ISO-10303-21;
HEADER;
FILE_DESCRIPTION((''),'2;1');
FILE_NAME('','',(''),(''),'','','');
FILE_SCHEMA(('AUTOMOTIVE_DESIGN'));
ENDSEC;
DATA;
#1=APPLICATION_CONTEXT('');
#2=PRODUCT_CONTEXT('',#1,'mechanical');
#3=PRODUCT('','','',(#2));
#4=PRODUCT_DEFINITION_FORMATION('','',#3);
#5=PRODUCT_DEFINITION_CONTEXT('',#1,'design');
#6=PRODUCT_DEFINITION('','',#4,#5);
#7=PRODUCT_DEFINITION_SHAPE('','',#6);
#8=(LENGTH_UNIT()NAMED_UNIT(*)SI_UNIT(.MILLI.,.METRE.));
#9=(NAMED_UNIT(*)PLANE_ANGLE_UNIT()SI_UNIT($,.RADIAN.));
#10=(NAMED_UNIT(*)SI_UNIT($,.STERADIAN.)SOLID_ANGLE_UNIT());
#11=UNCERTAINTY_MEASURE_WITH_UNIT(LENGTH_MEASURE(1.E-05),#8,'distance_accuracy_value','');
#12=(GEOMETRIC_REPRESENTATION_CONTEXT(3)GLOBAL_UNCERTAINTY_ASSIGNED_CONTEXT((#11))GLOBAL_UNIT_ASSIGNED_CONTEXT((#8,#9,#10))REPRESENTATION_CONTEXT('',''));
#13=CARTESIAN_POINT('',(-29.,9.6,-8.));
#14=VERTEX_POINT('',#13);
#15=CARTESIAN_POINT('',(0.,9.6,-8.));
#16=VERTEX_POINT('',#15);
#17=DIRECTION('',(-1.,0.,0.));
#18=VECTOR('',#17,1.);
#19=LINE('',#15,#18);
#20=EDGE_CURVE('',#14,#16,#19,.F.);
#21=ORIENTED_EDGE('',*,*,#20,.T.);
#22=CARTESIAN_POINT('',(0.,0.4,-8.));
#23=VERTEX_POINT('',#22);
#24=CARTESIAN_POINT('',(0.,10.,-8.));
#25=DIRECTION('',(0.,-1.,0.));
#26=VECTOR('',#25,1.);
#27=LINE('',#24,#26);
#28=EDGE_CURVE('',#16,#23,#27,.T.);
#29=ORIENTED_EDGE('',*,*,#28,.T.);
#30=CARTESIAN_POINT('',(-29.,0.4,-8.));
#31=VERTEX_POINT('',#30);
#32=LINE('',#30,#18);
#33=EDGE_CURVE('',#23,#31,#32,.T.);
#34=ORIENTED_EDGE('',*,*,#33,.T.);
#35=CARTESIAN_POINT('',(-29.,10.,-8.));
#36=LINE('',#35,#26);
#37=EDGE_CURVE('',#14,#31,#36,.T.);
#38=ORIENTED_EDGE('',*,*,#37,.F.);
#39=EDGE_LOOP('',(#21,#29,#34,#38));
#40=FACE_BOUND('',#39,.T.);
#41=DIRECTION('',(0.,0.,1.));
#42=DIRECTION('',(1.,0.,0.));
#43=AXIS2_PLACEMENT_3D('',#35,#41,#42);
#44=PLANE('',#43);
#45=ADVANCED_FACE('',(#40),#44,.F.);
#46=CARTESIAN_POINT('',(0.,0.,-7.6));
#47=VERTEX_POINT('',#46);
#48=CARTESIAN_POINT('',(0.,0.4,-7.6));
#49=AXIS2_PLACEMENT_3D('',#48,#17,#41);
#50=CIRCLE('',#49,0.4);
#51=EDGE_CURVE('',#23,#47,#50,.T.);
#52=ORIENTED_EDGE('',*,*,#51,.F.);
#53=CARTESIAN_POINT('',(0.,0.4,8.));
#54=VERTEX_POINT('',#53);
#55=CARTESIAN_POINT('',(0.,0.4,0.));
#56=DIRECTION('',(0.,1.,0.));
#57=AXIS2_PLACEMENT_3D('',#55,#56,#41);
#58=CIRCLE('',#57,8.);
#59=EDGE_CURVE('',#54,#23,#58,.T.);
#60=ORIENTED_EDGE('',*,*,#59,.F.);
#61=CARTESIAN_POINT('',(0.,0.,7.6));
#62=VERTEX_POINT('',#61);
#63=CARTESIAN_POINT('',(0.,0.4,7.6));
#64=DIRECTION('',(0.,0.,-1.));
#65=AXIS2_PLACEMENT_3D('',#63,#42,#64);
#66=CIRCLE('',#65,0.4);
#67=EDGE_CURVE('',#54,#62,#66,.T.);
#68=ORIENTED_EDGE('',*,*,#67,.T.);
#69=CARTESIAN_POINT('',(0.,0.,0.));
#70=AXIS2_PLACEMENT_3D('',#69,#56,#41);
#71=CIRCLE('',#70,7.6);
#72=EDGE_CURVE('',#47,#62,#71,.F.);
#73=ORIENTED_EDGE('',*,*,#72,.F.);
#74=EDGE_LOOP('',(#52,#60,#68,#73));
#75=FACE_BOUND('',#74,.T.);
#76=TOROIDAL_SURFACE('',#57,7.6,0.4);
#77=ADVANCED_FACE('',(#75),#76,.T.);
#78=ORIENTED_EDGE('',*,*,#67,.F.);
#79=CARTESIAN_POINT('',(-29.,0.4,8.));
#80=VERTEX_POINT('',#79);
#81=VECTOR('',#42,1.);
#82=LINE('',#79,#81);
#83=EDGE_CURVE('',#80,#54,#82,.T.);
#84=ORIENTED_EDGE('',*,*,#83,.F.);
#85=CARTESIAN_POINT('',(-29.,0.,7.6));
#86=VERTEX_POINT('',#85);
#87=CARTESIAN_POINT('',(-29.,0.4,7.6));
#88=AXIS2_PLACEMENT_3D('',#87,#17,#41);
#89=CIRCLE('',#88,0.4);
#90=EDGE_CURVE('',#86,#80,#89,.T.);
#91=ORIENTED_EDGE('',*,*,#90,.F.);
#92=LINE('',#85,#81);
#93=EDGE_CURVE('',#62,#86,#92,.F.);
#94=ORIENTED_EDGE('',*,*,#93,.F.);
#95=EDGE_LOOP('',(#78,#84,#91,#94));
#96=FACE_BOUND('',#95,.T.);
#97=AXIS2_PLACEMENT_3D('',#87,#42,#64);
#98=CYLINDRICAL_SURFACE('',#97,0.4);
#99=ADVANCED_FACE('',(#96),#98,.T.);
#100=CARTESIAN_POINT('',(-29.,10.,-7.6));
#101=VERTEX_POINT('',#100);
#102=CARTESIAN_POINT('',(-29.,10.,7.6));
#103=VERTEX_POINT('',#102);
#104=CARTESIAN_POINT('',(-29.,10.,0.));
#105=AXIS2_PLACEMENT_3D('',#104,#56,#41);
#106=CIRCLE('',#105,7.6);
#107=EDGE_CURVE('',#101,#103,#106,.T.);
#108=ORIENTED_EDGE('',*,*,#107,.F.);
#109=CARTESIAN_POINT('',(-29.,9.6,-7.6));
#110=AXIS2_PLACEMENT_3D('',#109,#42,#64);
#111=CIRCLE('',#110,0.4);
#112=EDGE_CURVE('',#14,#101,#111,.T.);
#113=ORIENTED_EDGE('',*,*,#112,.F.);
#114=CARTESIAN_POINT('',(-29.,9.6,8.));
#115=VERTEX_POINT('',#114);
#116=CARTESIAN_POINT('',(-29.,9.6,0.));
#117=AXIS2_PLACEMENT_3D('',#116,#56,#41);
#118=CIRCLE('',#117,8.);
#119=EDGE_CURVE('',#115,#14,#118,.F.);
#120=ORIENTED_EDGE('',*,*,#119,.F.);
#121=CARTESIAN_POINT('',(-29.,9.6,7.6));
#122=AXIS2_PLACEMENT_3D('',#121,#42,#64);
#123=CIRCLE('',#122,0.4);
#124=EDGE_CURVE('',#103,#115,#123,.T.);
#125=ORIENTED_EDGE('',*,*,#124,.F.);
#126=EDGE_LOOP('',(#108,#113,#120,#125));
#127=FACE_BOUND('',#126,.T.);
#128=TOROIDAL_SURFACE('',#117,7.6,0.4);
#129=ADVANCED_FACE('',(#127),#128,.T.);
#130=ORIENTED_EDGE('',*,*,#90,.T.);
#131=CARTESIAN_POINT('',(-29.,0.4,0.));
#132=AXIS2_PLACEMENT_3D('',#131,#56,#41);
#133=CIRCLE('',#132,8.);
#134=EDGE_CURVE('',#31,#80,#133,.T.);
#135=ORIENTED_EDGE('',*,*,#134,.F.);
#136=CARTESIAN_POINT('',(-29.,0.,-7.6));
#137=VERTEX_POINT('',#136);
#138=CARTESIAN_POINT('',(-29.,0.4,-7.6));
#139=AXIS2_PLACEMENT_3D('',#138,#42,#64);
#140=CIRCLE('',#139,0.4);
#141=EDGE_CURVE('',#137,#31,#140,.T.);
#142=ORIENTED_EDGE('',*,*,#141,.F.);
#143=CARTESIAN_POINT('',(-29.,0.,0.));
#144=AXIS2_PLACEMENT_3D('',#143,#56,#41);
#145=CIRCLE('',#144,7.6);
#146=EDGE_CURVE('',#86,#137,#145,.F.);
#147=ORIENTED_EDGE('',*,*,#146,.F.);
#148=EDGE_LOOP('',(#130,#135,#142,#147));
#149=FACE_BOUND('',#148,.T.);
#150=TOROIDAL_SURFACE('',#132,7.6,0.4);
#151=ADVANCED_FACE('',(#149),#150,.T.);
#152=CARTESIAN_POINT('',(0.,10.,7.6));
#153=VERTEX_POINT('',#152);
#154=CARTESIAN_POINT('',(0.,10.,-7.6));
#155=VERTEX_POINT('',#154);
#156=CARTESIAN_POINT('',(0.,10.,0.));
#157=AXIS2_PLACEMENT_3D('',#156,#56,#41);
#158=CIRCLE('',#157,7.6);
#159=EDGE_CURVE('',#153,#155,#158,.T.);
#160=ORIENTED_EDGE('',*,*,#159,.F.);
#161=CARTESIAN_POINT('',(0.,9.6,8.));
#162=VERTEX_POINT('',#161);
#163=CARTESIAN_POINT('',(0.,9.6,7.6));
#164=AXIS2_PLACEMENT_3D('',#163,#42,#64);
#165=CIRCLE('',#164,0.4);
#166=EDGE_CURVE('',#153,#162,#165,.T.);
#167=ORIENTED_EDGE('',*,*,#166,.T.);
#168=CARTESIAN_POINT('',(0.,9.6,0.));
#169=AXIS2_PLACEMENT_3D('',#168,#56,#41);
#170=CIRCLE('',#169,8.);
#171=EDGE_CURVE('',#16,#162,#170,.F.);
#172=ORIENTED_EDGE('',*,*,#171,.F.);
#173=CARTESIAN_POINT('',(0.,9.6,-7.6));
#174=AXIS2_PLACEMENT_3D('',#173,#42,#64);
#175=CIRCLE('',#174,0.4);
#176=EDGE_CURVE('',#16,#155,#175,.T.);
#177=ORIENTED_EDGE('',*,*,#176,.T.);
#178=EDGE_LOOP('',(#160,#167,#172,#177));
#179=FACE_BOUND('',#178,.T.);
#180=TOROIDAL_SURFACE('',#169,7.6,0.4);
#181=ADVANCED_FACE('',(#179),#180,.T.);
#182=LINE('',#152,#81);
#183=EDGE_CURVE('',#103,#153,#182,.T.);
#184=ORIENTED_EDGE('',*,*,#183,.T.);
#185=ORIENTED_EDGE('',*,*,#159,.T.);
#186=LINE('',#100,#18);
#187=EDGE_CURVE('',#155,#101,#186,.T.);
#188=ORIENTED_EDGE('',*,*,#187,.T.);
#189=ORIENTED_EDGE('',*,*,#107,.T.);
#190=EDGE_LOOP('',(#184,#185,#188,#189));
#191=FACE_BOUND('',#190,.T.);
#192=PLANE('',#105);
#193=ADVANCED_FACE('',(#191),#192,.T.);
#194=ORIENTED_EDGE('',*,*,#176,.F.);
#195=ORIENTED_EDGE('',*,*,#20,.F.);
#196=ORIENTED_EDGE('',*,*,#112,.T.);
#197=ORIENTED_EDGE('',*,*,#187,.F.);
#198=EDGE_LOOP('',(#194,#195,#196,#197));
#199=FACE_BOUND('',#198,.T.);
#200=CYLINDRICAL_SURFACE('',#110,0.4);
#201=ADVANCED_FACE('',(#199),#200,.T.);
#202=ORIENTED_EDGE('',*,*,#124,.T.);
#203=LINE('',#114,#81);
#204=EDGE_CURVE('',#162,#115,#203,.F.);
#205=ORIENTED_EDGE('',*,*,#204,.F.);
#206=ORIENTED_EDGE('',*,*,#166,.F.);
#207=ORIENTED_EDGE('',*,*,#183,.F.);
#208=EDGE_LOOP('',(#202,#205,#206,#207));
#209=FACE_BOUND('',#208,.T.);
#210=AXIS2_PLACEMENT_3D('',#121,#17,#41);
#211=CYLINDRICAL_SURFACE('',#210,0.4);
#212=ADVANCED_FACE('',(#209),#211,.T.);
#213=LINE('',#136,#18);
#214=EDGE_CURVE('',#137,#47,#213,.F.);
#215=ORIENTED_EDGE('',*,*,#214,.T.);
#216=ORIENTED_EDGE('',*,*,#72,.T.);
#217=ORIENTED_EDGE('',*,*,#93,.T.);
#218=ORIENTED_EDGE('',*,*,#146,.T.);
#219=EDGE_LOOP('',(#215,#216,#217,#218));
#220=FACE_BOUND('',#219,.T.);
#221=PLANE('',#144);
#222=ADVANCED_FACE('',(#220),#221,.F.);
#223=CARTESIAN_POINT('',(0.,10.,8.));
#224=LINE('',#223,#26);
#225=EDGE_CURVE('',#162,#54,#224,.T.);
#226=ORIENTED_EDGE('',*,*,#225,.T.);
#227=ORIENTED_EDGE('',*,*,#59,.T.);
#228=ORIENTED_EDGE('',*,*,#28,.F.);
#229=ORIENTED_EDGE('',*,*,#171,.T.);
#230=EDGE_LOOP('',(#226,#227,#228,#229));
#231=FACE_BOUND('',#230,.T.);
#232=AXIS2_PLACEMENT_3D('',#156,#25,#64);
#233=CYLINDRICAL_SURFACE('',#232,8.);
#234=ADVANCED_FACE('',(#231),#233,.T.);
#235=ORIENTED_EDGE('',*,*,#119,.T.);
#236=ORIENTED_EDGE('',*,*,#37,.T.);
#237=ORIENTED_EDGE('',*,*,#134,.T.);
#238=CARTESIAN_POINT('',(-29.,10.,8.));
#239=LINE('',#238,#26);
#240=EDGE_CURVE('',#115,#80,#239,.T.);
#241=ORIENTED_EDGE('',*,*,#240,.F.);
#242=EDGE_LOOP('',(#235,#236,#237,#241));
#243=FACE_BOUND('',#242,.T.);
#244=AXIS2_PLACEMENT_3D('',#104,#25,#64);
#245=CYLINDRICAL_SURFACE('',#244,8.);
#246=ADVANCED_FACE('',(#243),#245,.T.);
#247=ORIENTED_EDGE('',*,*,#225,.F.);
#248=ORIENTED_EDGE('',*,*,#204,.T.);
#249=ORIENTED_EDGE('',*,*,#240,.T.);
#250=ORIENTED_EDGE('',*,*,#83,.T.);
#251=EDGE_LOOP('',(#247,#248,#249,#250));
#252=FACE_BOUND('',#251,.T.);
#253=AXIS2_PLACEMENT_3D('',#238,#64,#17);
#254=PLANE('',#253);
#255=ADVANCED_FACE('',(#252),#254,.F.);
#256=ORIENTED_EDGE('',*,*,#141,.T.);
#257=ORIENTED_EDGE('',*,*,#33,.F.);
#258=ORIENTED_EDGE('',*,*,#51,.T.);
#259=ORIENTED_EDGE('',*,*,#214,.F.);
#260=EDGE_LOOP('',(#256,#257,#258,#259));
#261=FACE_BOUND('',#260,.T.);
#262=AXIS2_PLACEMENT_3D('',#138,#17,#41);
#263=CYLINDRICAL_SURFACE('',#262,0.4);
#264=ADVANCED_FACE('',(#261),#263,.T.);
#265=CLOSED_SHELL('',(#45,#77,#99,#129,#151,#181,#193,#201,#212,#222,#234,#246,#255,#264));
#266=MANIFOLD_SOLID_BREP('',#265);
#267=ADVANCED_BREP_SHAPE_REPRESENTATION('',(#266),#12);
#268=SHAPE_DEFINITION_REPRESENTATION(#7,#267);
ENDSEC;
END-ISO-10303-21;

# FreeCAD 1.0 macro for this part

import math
import FreeCAD as App
import Part
import Sketcher
from FreeCAD import Vector


def edges_at(feature, points):
    """Names of the edges that pass closest to the given points."""
    edges = feature.Shape.Edges
    near = lambda p: min(range(len(edges)), key=lambda i: edges[i].distToShape(Part.Vertex(*p))[0])
    return sorted({f"Edge{near(p) + 1}" for p in points})

doc = App.newDocument("Part")
params = doc.addObject("Spreadsheet::Sheet", "Params")
for row, (alias, value) in enumerate([
    ("sketch1_radius", "8 mm"),
    ("sketch1_width", "29 mm"),
    ("pad1_length", "10 mm"),
    ("fillet_radius", "0.4 mm"),
], start=1):
    params.set(f"A{row}", alias)
    params.set(f"B{row}", "=" + value)
    params.setAlias(f"B{row}", alias)

body = doc.addObject("PartDesign::Body", "Body")

sketch1 = doc.addObject("Sketcher::SketchObject", "Sketch")
body.addObject(sketch1)
sketch1.AttachmentSupport = (doc.XZ_Plane, [""])
sketch1.MapMode = "FlatFace"
sketch1.addGeometry([
    Part.LineSegment(Vector(0, -8, 0), Vector(-29, -8, 0)),
    Part.ArcOfCircle(Part.Circle(Vector(-29, 0, 0), Vector(0, 0, 1), 8), math.radians(90), math.radians(270)),
    Part.LineSegment(Vector(-29, 8, 0), Vector(0, 8, 0)),
    Part.ArcOfCircle(Part.Circle(Vector(0, 0, 0), Vector(0, 0, 1), 8), math.radians(-90), math.radians(90)),
], False)
sketch1.addConstraint([
    Sketcher.Constraint("Tangent", 0, 2, 1, 2),
    Sketcher.Constraint("Tangent", 1, 1, 2, 1),
    Sketcher.Constraint("Tangent", 2, 2, 3, 2),
    Sketcher.Constraint("Tangent", 3, 1, 0, 1),
    Sketcher.Constraint("Horizontal", 0),
    Sketcher.Constraint("Horizontal", 2),
    Sketcher.Constraint("Coincident", 3, 3, -1, 1),
    Sketcher.Constraint("Radius", 1, 8.0),
    Sketcher.Constraint("DistanceX", 0, 2, 0, 1, 29.0),
])
sketch1.setExpression("Constraints[7]", "Params.sketch1_radius")
sketch1.setExpression("Constraints[8]", "Params.sketch1_width")
pad1 = doc.addObject("PartDesign::Pad", "Pad")
body.addObject(pad1)
pad1.Profile = sketch1
pad1.setExpression("Length", "Params.pad1_length")
pad1.Reversed = True
doc.recompute()

fillet = doc.addObject("PartDesign::Fillet", "Fillet")
body.addObject(fillet)
fillet.Base = (pad1, edges_at(pad1, [
    (8, 10, 0),
    (-14.5, 10, -8),
    (-37, 10, 0),
    (-14.5, 0, -8),
    (8, 0, 0),
    (-14.5, 0, 8),
    (-37, 0, 0),
    (-14.5, 10, 8),
]))
fillet.setExpression("Radius", "Params.fillet_radius")

doc.recompute()
